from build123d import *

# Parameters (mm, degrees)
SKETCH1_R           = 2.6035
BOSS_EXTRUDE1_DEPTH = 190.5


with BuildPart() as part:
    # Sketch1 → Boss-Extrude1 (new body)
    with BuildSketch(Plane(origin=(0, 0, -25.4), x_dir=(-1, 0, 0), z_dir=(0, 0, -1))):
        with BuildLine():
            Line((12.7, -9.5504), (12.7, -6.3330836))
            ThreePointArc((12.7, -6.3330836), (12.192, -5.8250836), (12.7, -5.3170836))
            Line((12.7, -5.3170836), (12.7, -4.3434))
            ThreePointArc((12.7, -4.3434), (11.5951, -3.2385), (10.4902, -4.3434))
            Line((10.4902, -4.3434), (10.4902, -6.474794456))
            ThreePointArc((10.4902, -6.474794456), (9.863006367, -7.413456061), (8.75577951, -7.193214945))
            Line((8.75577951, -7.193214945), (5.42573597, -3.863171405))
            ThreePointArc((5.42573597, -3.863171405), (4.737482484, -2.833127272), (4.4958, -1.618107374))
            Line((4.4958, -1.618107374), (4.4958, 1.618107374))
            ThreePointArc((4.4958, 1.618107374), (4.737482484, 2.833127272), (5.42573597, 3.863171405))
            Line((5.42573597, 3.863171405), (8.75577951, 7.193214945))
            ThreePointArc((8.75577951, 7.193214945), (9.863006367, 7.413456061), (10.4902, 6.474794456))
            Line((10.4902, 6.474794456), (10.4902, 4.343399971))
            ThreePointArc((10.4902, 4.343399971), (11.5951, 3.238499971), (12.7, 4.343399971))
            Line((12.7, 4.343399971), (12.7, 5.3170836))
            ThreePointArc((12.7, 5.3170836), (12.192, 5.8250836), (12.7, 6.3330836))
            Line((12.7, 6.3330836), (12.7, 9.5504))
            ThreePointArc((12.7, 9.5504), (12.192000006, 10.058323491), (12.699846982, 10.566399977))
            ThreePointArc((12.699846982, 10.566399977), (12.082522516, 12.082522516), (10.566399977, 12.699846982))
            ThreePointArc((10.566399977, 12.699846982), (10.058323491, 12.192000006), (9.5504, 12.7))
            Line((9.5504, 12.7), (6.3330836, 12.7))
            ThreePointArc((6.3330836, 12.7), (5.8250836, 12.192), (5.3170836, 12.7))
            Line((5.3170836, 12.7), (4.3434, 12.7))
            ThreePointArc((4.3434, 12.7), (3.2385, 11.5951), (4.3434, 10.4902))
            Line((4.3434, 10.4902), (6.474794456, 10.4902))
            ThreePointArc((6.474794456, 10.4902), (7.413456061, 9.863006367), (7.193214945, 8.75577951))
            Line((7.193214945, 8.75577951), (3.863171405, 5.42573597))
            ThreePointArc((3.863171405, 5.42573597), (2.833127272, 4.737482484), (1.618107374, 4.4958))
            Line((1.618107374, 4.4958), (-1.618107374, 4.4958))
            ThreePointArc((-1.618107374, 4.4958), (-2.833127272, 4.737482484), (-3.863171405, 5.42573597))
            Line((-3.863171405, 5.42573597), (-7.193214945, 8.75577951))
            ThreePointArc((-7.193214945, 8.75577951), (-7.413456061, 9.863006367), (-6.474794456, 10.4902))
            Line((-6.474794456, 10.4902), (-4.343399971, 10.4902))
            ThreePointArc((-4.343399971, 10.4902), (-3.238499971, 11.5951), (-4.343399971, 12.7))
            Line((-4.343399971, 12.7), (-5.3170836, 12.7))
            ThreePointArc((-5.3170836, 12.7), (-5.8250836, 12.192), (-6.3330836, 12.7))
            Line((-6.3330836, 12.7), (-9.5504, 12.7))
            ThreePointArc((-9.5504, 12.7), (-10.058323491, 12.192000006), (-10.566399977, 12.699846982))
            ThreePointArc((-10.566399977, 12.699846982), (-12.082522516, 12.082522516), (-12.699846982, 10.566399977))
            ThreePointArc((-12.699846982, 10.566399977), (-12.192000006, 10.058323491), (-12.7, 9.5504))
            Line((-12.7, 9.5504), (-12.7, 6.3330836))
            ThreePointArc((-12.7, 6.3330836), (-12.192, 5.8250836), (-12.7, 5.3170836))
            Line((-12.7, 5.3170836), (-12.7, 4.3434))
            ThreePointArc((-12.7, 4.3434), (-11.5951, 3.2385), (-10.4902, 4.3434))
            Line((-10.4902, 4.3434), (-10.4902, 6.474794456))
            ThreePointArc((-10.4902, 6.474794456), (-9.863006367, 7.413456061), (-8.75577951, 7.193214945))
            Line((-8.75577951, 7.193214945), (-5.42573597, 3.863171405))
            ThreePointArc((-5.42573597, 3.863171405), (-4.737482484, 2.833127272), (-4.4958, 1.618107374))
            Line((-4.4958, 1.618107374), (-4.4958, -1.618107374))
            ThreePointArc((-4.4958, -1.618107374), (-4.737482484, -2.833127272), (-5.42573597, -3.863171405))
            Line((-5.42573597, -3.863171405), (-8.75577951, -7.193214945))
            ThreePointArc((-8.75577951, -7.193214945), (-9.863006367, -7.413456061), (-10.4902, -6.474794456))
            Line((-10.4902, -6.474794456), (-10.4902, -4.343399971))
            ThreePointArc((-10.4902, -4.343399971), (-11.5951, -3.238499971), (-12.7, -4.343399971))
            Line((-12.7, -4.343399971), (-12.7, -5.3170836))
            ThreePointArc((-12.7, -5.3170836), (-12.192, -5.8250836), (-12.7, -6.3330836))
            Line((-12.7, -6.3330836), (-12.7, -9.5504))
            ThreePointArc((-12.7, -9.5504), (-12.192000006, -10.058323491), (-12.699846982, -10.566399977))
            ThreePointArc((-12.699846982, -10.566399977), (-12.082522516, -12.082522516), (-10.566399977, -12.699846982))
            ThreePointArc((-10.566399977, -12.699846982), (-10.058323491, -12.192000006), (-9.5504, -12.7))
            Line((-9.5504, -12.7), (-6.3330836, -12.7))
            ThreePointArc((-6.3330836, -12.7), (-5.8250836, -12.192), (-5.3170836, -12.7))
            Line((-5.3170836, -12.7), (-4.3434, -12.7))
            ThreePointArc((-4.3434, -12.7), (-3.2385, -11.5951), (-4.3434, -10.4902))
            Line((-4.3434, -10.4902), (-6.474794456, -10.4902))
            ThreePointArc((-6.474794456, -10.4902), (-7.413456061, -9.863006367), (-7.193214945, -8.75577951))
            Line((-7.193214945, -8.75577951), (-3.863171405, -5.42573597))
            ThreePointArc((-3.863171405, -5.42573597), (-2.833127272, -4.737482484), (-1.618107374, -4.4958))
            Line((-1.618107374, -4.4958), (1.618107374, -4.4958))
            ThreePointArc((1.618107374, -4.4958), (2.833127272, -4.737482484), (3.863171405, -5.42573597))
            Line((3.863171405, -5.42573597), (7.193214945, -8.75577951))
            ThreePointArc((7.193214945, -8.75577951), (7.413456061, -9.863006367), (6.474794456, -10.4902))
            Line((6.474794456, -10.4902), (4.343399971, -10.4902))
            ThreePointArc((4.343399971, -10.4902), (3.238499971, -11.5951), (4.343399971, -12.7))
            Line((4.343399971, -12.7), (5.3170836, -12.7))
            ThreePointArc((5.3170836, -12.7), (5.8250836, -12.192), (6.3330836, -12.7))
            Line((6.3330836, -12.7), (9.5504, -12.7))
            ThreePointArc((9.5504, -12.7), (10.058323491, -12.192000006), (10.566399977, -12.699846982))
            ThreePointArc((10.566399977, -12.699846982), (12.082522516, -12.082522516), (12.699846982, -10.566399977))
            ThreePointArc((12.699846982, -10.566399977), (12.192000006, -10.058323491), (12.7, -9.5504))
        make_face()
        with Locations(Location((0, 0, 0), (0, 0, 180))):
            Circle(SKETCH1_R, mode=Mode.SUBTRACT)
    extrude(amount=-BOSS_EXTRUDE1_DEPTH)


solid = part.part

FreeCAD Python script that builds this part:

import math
import FreeCAD as App
import Part
import Sketcher

V = App.Vector
Q = App.Units.Quantity

doc = App.newDocument("Part")
body = doc.addObject("PartDesign::Body", "Body")

sketch1 = doc.addObject("Sketcher::SketchObject", "Sketch")
body.addObject(sketch1)
sketch1.AttachmentSupport = (doc.XY_Plane, [""])
sketch1.MapMode = "FlatFace"
sketch1.AttachmentOffset = App.Placement(V(0, 0, -1 * 25.4), App.Rotation())
sketch1.addGeometry([
    Part.LineSegment(V(-12.7, -9.6, 0), V(-12.7, -6.3, 0)),
    Part.ArcOfCircle(Part.Circle(V(-12.7, -5.8, 0), V(0, 0, 1), 0.5), math.radians(-90), math.radians(90)),
    Part.LineSegment(V(-12.7, -5.3, 0), V(-12.7, -4.3, 0)),
    Part.ArcOfCircle(Part.Circle(V(-11.6, -4.3, 0), V(0, 0, 1), 1.1), math.radians(0), math.radians(180)),
    Part.LineSegment(V(-10.5, -4.3, 0), V(-10.5, -6.5, 0)),
    Part.ArcOfCircle(Part.Circle(V(-9.5, -6.5, 0), V(0, 0, 1), 1), math.radians(180), math.radians(315)),
    Part.LineSegment(V(-8.8, -7.2, 0), V(-5.4, -3.9, 0)),
    Part.ArcOfCircle(Part.Circle(V(-7.7, -1.6, 0), V(0, 0, 1), 3.2), math.radians(-45), math.radians(0)),
    Part.LineSegment(V(-4.5, -1.6, 0), V(-4.5, 1.6, 0)),
    Part.ArcOfCircle(Part.Circle(V(-7.7, 1.6, 0), V(0, 0, 1), 3.2), math.radians(0), math.radians(45)),
    Part.LineSegment(V(-5.4, 3.9, 0), V(-8.8, 7.2, 0)),
    Part.ArcOfCircle(Part.Circle(V(-9.5, 6.5, 0), V(0, 0, 1), 1), math.radians(45), math.radians(180)),
    Part.LineSegment(V(-10.5, 6.5, 0), V(-10.5, 4.3, 0)),
    Part.ArcOfCircle(Part.Circle(V(-11.6, 4.3, 0), V(0, 0, 1), 1.1), math.radians(180), math.radians(360)),
    Part.LineSegment(V(-12.7, 4.3, 0), V(-12.7, 5.3, 0)),
    Part.ArcOfCircle(Part.Circle(V(-12.7, 5.8, 0), V(0, 0, 1), 0.5), math.radians(-90), math.radians(90)),
    Part.LineSegment(V(-12.7, 6.3, 0), V(-12.7, 9.6, 0)),
    Part.ArcOfCircle(Part.Circle(V(-12.7, 10.1, 0), V(0, 0, 1), 0.5), math.radians(-90), math.radians(90)),
    Part.ArcOfCircle(Part.Circle(V(-10.6, 10.6, 0), V(0, 0, 1), 2.1), math.radians(89), math.radians(181)),
    Part.ArcOfCircle(Part.Circle(V(-10.1, 12.7, 0), V(0, 0, 1), 0.5), math.radians(-180), math.radians(0)),
    Part.LineSegment(V(-9.6, 12.7, 0), V(-6.3, 12.7, 0)),
    Part.ArcOfCircle(Part.Circle(V(-5.8, 12.7, 0), V(0, 0, 1), 0.5), math.radians(180), math.radians(360)),
    Part.LineSegment(V(-5.3, 12.7, 0), V(-4.3, 12.7, 0)),
    Part.ArcOfCircle(Part.Circle(V(-4.3, 11.6, 0), V(0, 0, 1), 1.1), math.radians(-90), math.radians(90)),
    Part.LineSegment(V(-4.3, 10.5, 0), V(-6.5, 10.5, 0)),
    Part.ArcOfCircle(Part.Circle(V(-6.5, 9.5, 0), V(0, 0, 1), 1), math.radians(90), math.radians(225)),
    Part.LineSegment(V(-7.2, 8.8, 0), V(-3.9, 5.4, 0)),
    Part.ArcOfCircle(Part.Circle(V(-1.6, 7.7, 0), V(0, 0, 1), 3.2), math.radians(-135), math.radians(-90)),
    Part.LineSegment(V(-1.6, 4.5, 0), V(1.6, 4.5, 0)),
    Part.ArcOfCircle(Part.Circle(V(1.6, 7.7, 0), V(0, 0, 1), 3.2), math.radians(-90), math.radians(-45)),
    Part.LineSegment(V(3.9, 5.4, 0), V(7.2, 8.8, 0)),
    Part.ArcOfCircle(Part.Circle(V(6.5, 9.5, 0), V(0, 0, 1), 1), math.radians(-45), math.radians(90)),
    Part.LineSegment(V(6.5, 10.5, 0), V(4.3, 10.5, 0)),
    Part.ArcOfCircle(Part.Circle(V(4.3, 11.6, 0), V(0, 0, 1), 1.1), math.radians(90), math.radians(270)),
    Part.LineSegment(V(4.3, 12.7, 0), V(5.3, 12.7, 0)),
    Part.ArcOfCircle(Part.Circle(V(5.8, 12.7, 0), V(0, 0, 1), 0.5), math.radians(180), math.radians(360)),
    Part.LineSegment(V(6.3, 12.7, 0), V(9.6, 12.7, 0)),
    Part.ArcOfCircle(Part.Circle(V(10.1, 12.7, 0), V(0, 0, 1), 0.5), math.radians(180), math.radians(360)),
    Part.ArcOfCircle(Part.Circle(V(10.6, 10.6, 0), V(0, 0, 1), 2.1), math.radians(-1), math.radians(91)),
    Part.ArcOfCircle(Part.Circle(V(12.7, 10.1, 0), V(0, 0, 1), 0.5), math.radians(90), math.radians(270)),
    Part.LineSegment(V(12.7, 9.6, 0), V(12.7, 6.3, 0)),
    Part.ArcOfCircle(Part.Circle(V(12.7, 5.8, 0), V(0, 0, 1), 0.5), math.radians(90), math.radians(270)),
    Part.LineSegment(V(12.7, 5.3, 0), V(12.7, 4.3, 0)),
    Part.ArcOfCircle(Part.Circle(V(11.6, 4.3, 0), V(0, 0, 1), 1.1), math.radians(180), math.radians(360)),
    Part.LineSegment(V(10.5, 4.3, 0), V(10.5, 6.5, 0)),
    Part.ArcOfCircle(Part.Circle(V(9.5, 6.5, 0), V(0, 0, 1), 1), math.radians(0), math.radians(135)),
    Part.LineSegment(V(8.8, 7.2, 0), V(5.4, 3.9, 0)),
    Part.ArcOfCircle(Part.Circle(V(7.7, 1.6, 0), V(0, 0, 1), 3.2), math.radians(135), math.radians(180)),
    Part.LineSegment(V(4.5, 1.6, 0), V(4.5, -1.6, 0)),
    Part.ArcOfCircle(Part.Circle(V(7.7, -1.6, 0), V(0, 0, 1), 3.2), math.radians(180), math.radians(225)),
    Part.LineSegment(V(5.4, -3.9, 0), V(8.8, -7.2, 0)),
    Part.ArcOfCircle(Part.Circle(V(9.5, -6.5, 0), V(0, 0, 1), 1), math.radians(-135), math.radians(0)),
    Part.LineSegment(V(10.5, -6.5, 0), V(10.5, -4.3, 0)),
    Part.ArcOfCircle(Part.Circle(V(11.6, -4.3, 0), V(0, 0, 1), 1.1), math.radians(0), math.radians(180)),
    Part.LineSegment(V(12.7, -4.3, 0), V(12.7, -5.3, 0)),
    Part.ArcOfCircle(Part.Circle(V(12.7, -5.8, 0), V(0, 0, 1), 0.5), math.radians(90), math.radians(270)),
    Part.LineSegment(V(12.7, -6.3, 0), V(12.7, -9.6, 0)),
    Part.ArcOfCircle(Part.Circle(V(12.7, -10.1, 0), V(0, 0, 1), 0.5), math.radians(90), math.radians(270)),
    Part.ArcOfCircle(Part.Circle(V(10.6, -10.6, 0), V(0, 0, 1), 2.1), math.radians(-91), math.radians(1)),
    Part.ArcOfCircle(Part.Circle(V(10.1, -12.7, 0), V(0, 0, 1), 0.5), math.radians(0), math.radians(180)),
    Part.LineSegment(V(9.6, -12.7, 0), V(6.3, -12.7, 0)),
    Part.ArcOfCircle(Part.Circle(V(5.8, -12.7, 0), V(0, 0, 1), 0.5), math.radians(0), math.radians(180)),
    Part.LineSegment(V(5.3, -12.7, 0), V(4.3, -12.7, 0)),
    Part.ArcOfCircle(Part.Circle(V(4.3, -11.6, 0), V(0, 0, 1), 1.1), math.radians(90), math.radians(270)),
    Part.LineSegment(V(4.3, -10.5, 0), V(6.5, -10.5, 0)),
    Part.ArcOfCircle(Part.Circle(V(6.5, -9.5, 0), V(0, 0, 1), 1), math.radians(-90), math.radians(45)),
    Part.LineSegment(V(7.2, -8.8, 0), V(3.9, -5.4, 0)),
    Part.ArcOfCircle(Part.Circle(V(1.6, -7.7, 0), V(0, 0, 1), 3.2), math.radians(45), math.radians(90)),
    Part.LineSegment(V(1.6, -4.5, 0), V(-1.6, -4.5, 0)),
    Part.ArcOfCircle(Part.Circle(V(-1.6, -7.7, 0), V(0, 0, 1), 3.2), math.radians(90), math.radians(135)),
    Part.LineSegment(V(-3.9, -5.4, 0), V(-7.2, -8.8, 0)),
    Part.ArcOfCircle(Part.Circle(V(-6.5, -9.5, 0), V(0, 0, 1), 1), math.radians(135), math.radians(270)),
    Part.LineSegment(V(-6.5, -10.5, 0), V(-4.3, -10.5, 0)),
    Part.ArcOfCircle(Part.Circle(V(-4.3, -11.6, 0), V(0, 0, 1), 1.1), math.radians(-90), math.radians(90)),
    Part.LineSegment(V(-4.3, -12.7, 0), V(-5.3, -12.7, 0)),
    Part.ArcOfCircle(Part.Circle(V(-5.8, -12.7, 0), V(0, 0, 1), 0.5), math.radians(0), math.radians(180)),
    Part.LineSegment(V(-6.3, -12.7, 0), V(-9.6, -12.7, 0)),
    Part.ArcOfCircle(Part.Circle(V(-10.1, -12.7, 0), V(0, 0, 1), 0.5), math.radians(0), math.radians(180)),
    Part.ArcOfCircle(Part.Circle(V(-10.6, -10.6, 0), V(0, 0, 1), 2.1), math.radians(179), math.radians(271)),
    Part.ArcOfCircle(Part.Circle(V(-12.7, -10.1, 0), V(0, 0, 1), 0.5), math.radians(-90), math.radians(90)),
    Part.Circle(V(0, 0, 0), V(0, 0, 1), 2.6),
], False)
sketch1.addConstraint([
    Sketcher.Constraint("Coincident", 0, 2, 1, 1),
    Sketcher.Constraint("Coincident", 1, 2, 2, 1),
    Sketcher.Constraint("Tangent", 2, 2, 3, 2),
    Sketcher.Constraint("Tangent", 3, 1, 4, 1),
    Sketcher.Constraint("Tangent", 4, 2, 5, 1),
    Sketcher.Constraint("Tangent", 5, 2, 6, 1),
    Sketcher.Constraint("Tangent", 6, 2, 7, 1),
    Sketcher.Constraint("Tangent", 7, 2, 8, 1),
    Sketcher.Constraint("Tangent", 8, 2, 9, 1),
    Sketcher.Constraint("Tangent", 9, 2, 10, 1),
    Sketcher.Constraint("Tangent", 10, 2, 11, 1),
    Sketcher.Constraint("Tangent", 11, 2, 12, 1),
    Sketcher.Constraint("Tangent", 12, 2, 13, 2),
    Sketcher.Constraint("Tangent", 13, 1, 14, 1),
    Sketcher.Constraint("Coincident", 14, 2, 15, 1),
    Sketcher.Constraint("Coincident", 15, 2, 16, 1),
    Sketcher.Constraint("Coincident", 16, 2, 17, 1),
    Sketcher.Constraint("Coincident", 17, 2, 18, 2),
    Sketcher.Constraint("Coincident", 18, 1, 19, 1),
    Sketcher.Constraint("Coincident", 19, 2, 20, 1),
    Sketcher.Constraint("Coincident", 20, 2, 21, 1),
    Sketcher.Constraint("Coincident", 21, 2, 22, 1),
    Sketcher.Constraint("Tangent", 22, 2, 23, 2),
    Sketcher.Constraint("Tangent", 23, 1, 24, 1),
    Sketcher.Constraint("Tangent", 24, 2, 25, 1),
    Sketcher.Constraint("Tangent", 25, 2, 26, 1),
    Sketcher.Constraint("Tangent", 26, 2, 27, 1),
    Sketcher.Constraint("Tangent", 27, 2, 28, 1),
    Sketcher.Constraint("Tangent", 28, 2, 29, 1),
    Sketcher.Constraint("Tangent", 29, 2, 30, 1),
    Sketcher.Constraint("Tangent", 30, 2, 31, 1),
    Sketcher.Constraint("Tangent", 31, 2, 32, 1),
    Sketcher.Constraint("Tangent", 32, 2, 33, 2),
    Sketcher.Constraint("Tangent", 33, 1, 34, 1),
    Sketcher.Constraint("Coincident", 34, 2, 35, 1),
    Sketcher.Constraint("Coincident", 35, 2, 36, 1),
    Sketcher.Constraint("Coincident", 36, 2, 37, 1),
    Sketcher.Constraint("Coincident", 37, 2, 38, 2),
    Sketcher.Constraint("Coincident", 38, 1, 39, 1),
    Sketcher.Constraint("Coincident", 39, 2, 40, 1),
    Sketcher.Constraint("Coincident", 40, 2, 41, 1),
    Sketcher.Constraint("Coincident", 41, 2, 42, 1),
    Sketcher.Constraint("Tangent", 42, 2, 43, 2),
    Sketcher.Constraint("Tangent", 43, 1, 44, 1),
    Sketcher.Constraint("Tangent", 44, 2, 45, 1),
    Sketcher.Constraint("Tangent", 45, 2, 46, 1),
    Sketcher.Constraint("Tangent", 46, 2, 47, 1),
    Sketcher.Constraint("Tangent", 47, 2, 48, 1),
    Sketcher.Constraint("Tangent", 48, 2, 49, 1),
    Sketcher.Constraint("Tangent", 49, 2, 50, 1),
    Sketcher.Constraint("Tangent", 50, 2, 51, 1),
    Sketcher.Constraint("Tangent", 51, 2, 52, 1),
    Sketcher.Constraint("Tangent", 52, 2, 53, 2),
    Sketcher.Constraint("Tangent", 53, 1, 54, 1),
    Sketcher.Constraint("Coincident", 54, 2, 55, 1),
    Sketcher.Constraint("Coincident", 55, 2, 56, 1),
    Sketcher.Constraint("Coincident", 56, 2, 57, 1),
    Sketcher.Constraint("Coincident", 57, 2, 58, 2),
    Sketcher.Constraint("Coincident", 58, 1, 59, 1),
    Sketcher.Constraint("Coincident", 59, 2, 60, 1),
    Sketcher.Constraint("Coincident", 60, 2, 61, 1),
    Sketcher.Constraint("Coincident", 61, 2, 62, 1),
    Sketcher.Constraint("Tangent", 62, 2, 63, 2),
    Sketcher.Constraint("Tangent", 63, 1, 64, 1),
    Sketcher.Constraint("Tangent", 64, 2, 65, 1),
    Sketcher.Constraint("Tangent", 65, 2, 66, 1),
    Sketcher.Constraint("Tangent", 66, 2, 67, 1),
    Sketcher.Constraint("Tangent", 67, 2, 68, 1),
    Sketcher.Constraint("Tangent", 68, 2, 69, 1),
    Sketcher.Constraint("Tangent", 69, 2, 70, 1),
    Sketcher.Constraint("Tangent", 70, 2, 71, 1),
    Sketcher.Constraint("Tangent", 71, 2, 72, 1),
    Sketcher.Constraint("Tangent", 72, 2, 73, 2),
    Sketcher.Constraint("Tangent", 73, 1, 74, 1),
    Sketcher.Constraint("Coincident", 74, 2, 75, 1),
    Sketcher.Constraint("Coincident", 75, 2, 76, 1),
    Sketcher.Constraint("Coincident", 76, 2, 77, 1),
    Sketcher.Constraint("Coincident", 77, 2, 78, 2),
    Sketcher.Constraint("Coincident", 78, 1, 79, 1),
    Sketcher.Constraint("Coincident", 79, 2, 0, 1),
    Sketcher.Constraint("Vertical", 0),
    Sketcher.Constraint("Vertical", 2),
    Sketcher.Constraint("Vertical", 4),
    Sketcher.Constraint("Vertical", 8),
    Sketcher.Constraint("Vertical", 12),
    Sketcher.Constraint("Vertical", 14),
    Sketcher.Constraint("Vertical", 16),
    Sketcher.Constraint("Horizontal", 20),
    Sketcher.Constraint("Horizontal", 22),
    Sketcher.Constraint("Horizontal", 24),
    Sketcher.Constraint("Horizontal", 28),
    Sketcher.Constraint("Horizontal", 32),
    Sketcher.Constraint("Horizontal", 34),
    Sketcher.Constraint("Horizontal", 36),
    Sketcher.Constraint("Vertical", 40),
    Sketcher.Constraint("Vertical", 42),
    Sketcher.Constraint("Vertical", 44),
    Sketcher.Constraint("Vertical", 48),
    Sketcher.Constraint("Vertical", 52),
    Sketcher.Constraint("Vertical", 54),
    Sketcher.Constraint("Vertical", 56),
    Sketcher.Constraint("Horizontal", 60),
    Sketcher.Constraint("Horizontal", 62),
    Sketcher.Constraint("Horizontal", 64),
    Sketcher.Constraint("Horizontal", 68),
    Sketcher.Constraint("Horizontal", 72),
    Sketcher.Constraint("Horizontal", 74),
    Sketcher.Constraint("Horizontal", 76),
    Sketcher.Constraint("Coincident", 80, 3, -1, 1),
    Sketcher.Constraint("Equal", 7, 9),
    Sketcher.Constraint("Equal", 5, 11),
    Sketcher.Constraint("Equal", 3, 13),
    Sketcher.Constraint("Equal", 1, 15),
    Sketcher.Constraint("Equal", 15, 17),
    Sketcher.Constraint("Equal", 17, 19),
    Sketcher.Constraint("Equal", 19, 21),
    Sketcher.Constraint("Equal", 13, 23),
    Sketcher.Constraint("Equal", 11, 25),
    Sketcher.Constraint("Equal", 9, 27),
    Sketcher.Constraint("Equal", 27, 29),
    Sketcher.Constraint("Equal", 25, 31),
    Sketcher.Constraint("Equal", 23, 33),
    Sketcher.Constraint("Equal", 21, 35),
    Sketcher.Constraint("Equal", 35, 37),
    Sketcher.Constraint("Equal", 18, 38),
    Sketcher.Constraint("Equal", 37, 39),
    Sketcher.Constraint("Equal", 39, 41),
    Sketcher.Constraint("Equal", 33, 43),
    Sketcher.Constraint("Equal", 31, 45),
    Sketcher.Constraint("Equal", 29, 47),
    Sketcher.Constraint("Equal", 47, 49),
    Sketcher.Constraint("Equal", 45, 51),
    Sketcher.Constraint("Equal", 43, 53),
    Sketcher.Constraint("Equal", 41, 55),
    Sketcher.Constraint("Equal", 55, 57),
    Sketcher.Constraint("Equal", 38, 58),
    Sketcher.Constraint("Equal", 57, 59),
    Sketcher.Constraint("Equal", 59, 61),
    Sketcher.Constraint("Equal", 53, 63),
    Sketcher.Constraint("Equal", 51, 65),
    Sketcher.Constraint("Equal", 49, 67),
    Sketcher.Constraint("Equal", 67, 69),
    Sketcher.Constraint("Equal", 65, 71),
    Sketcher.Constraint("Equal", 63, 73),
    Sketcher.Constraint("Equal", 61, 75),
    Sketcher.Constraint("Equal", 75, 77),
    Sketcher.Constraint("Equal", 58, 78),
    Sketcher.Constraint("Equal", 77, 79),
    Sketcher.Constraint("Symmetric", 1, 3, 41, 3, -1, 1),
    Sketcher.Constraint("Symmetric", 3, 3, 43, 3, -1, 1),
    Sketcher.Constraint("Symmetric", 7, 3, 47, 3, -1, 1),
    Sketcher.Constraint("Symmetric", 11, 3, 51, 3, -1, 1),
    Sketcher.Constraint("Symmetric", 15, 3, 55, 3, -1, 1),
    Sketcher.Constraint("Symmetric", 17, 3, 57, 3, -1, 1),
    Sketcher.Constraint("Symmetric", 18, 3, 58, 3, -1, 1),
    Sketcher.Constraint("Symmetric", 19, 3, 59, 3, -1, 1),
    Sketcher.Constraint("Symmetric", 21, 3, 61, 3, -1, 1),
    Sketcher.Constraint("Symmetric", 23, 3, 63, 3, -1, 1),
    Sketcher.Constraint("Symmetric", 27, 3, 67, 3, -1, 1),
    Sketcher.Constraint("Symmetric", 31, 3, 71, 3, -1, 1),
    Sketcher.Constraint("Symmetric", 35, 3, 75, 3, -1, 1),
    Sketcher.Constraint("Symmetric", 37, 3, 77, 3, -1, 1),
    Sketcher.Constraint("Symmetric", 38, 3, 78, 3, -1, 1),
    Sketcher.Constraint("Symmetric", 39, 3, 79, 3, -1, 1),
    Sketcher.Constraint("Symmetric", 25, 3, 31, 3, -2),
    Sketcher.Constraint("Symmetric", 21, 3, 35, 3, -2),
    Sketcher.Constraint("Symmetric", 19, 3, 37, 3, -2),
    Sketcher.Constraint("Symmetric", 18, 3, 38, 3, -2),
    Sketcher.Constraint("Symmetric", 17, 3, 39, 3, -2),
    Sketcher.Constraint("Symmetric", 15, 3, 41, 3, -2),
    Sketcher.Constraint("Symmetric", 13, 3, 43, 3, -2),
    Sketcher.Constraint("Symmetric", 10, 2, 45, 2, -2),
    Sketcher.Constraint("Symmetric", 6, 2, 49, 2, -2),
    Sketcher.Constraint("Symmetric", 66, 2, 69, 2, -2),
    Sketcher.Constraint("Perpendicular", 6, 10),
    Sketcher.Constraint("Parallel", 10, 26),
    Sketcher.Constraint("Perpendicular", 26, 30),
    Sketcher.Constraint("Horizontal", 19, 3, 21, 3),
    Sketcher.Constraint("Horizontal", 3, 3, 53, 3),
    Sketcher.Constraint("Horizontal", 37, 3, 19, 2),
    Sketcher.Constraint("Horizontal", 20, 2, 21, 2),
    Sketcher.Constraint("Horizontal", 34, 2, 35, 2),
    Sketcher.Constraint("Horizontal", 77, 3, 59, 2),
    Sketcher.Constraint("Horizontal", 74, 2, 75, 2),
    Sketcher.Constraint("Vertical", 15, 3, 17, 3),
    Sketcher.Constraint("Vertical", 33, 3, 63, 3),
    Sketcher.Constraint("Vertical", 23, 3, 73, 3),
    Sketcher.Constraint("Vertical", 79, 3, 0, 2),
    Sketcher.Constraint("Vertical", 0, 2, 1, 2),
    Sketcher.Constraint("Vertical", 14, 2, 15, 2),
    Sketcher.Constraint("Vertical", 57, 3, 39, 2),
    Sketcher.Constraint("Vertical", 54, 2, 55, 2),
    Sketcher.Constraint("Equal", 76, 0),
    Sketcher.Constraint("Equal", 74, 2),
    Sketcher.Constraint("Equal", 72, 4),
    Sketcher.Constraint("Equal", 68, 8),
    Sketcher.Constraint("Equal", 10, 26),
    Sketcher.Constraint("Radius", 1, Q("0.02 in")),
    Sketcher.Constraint("Radius", 5, Q("0.04 in")),
    Sketcher.Constraint("Diameter", 80, Q("0.205 in")),
    Sketcher.Constraint("Radius", 7, Q("0.125 in")),
    Sketcher.Constraint("Radius", 18, Q("0.083 in")),
    Sketcher.Constraint("DistanceX", 1, 3, -1, 1, Q("0.5 in")),
    Sketcher.Constraint("DistanceY", -1, 1, 19, 3, Q("0.5 in")),
    Sketcher.Constraint("Radius", 3, Q("0.0435 in")),
    Sketcher.Constraint("DistanceY", 3, 3, -1, 1, Q("0.171 in")),
    Sketcher.Constraint("DistanceX", 7, 3, -1, 1, Q("0.302 in")),
    Sketcher.Constraint("DistanceY", -1, 1, 17, 3, Q("0.396 in")),
    Sketcher.Constraint("DistanceX", 18, 3, -1, 1, Q("0.417 in")),
    Sketcher.Constraint("DistanceY", -1, 1, 18, 3, Q("0.417 in")),
    Sketcher.Constraint("DistanceX", 20, 1, 20, 2, 3.217316),
    Sketcher.Constraint("DistanceX", 24, 2, 24, 1, 2.131394),
])
pad1 = doc.addObject("PartDesign::Pad", "Pad")
body.addObject(pad1)
pad1.Profile = sketch1
pad1.Length = Q("7.5 in")

doc.recompute()
